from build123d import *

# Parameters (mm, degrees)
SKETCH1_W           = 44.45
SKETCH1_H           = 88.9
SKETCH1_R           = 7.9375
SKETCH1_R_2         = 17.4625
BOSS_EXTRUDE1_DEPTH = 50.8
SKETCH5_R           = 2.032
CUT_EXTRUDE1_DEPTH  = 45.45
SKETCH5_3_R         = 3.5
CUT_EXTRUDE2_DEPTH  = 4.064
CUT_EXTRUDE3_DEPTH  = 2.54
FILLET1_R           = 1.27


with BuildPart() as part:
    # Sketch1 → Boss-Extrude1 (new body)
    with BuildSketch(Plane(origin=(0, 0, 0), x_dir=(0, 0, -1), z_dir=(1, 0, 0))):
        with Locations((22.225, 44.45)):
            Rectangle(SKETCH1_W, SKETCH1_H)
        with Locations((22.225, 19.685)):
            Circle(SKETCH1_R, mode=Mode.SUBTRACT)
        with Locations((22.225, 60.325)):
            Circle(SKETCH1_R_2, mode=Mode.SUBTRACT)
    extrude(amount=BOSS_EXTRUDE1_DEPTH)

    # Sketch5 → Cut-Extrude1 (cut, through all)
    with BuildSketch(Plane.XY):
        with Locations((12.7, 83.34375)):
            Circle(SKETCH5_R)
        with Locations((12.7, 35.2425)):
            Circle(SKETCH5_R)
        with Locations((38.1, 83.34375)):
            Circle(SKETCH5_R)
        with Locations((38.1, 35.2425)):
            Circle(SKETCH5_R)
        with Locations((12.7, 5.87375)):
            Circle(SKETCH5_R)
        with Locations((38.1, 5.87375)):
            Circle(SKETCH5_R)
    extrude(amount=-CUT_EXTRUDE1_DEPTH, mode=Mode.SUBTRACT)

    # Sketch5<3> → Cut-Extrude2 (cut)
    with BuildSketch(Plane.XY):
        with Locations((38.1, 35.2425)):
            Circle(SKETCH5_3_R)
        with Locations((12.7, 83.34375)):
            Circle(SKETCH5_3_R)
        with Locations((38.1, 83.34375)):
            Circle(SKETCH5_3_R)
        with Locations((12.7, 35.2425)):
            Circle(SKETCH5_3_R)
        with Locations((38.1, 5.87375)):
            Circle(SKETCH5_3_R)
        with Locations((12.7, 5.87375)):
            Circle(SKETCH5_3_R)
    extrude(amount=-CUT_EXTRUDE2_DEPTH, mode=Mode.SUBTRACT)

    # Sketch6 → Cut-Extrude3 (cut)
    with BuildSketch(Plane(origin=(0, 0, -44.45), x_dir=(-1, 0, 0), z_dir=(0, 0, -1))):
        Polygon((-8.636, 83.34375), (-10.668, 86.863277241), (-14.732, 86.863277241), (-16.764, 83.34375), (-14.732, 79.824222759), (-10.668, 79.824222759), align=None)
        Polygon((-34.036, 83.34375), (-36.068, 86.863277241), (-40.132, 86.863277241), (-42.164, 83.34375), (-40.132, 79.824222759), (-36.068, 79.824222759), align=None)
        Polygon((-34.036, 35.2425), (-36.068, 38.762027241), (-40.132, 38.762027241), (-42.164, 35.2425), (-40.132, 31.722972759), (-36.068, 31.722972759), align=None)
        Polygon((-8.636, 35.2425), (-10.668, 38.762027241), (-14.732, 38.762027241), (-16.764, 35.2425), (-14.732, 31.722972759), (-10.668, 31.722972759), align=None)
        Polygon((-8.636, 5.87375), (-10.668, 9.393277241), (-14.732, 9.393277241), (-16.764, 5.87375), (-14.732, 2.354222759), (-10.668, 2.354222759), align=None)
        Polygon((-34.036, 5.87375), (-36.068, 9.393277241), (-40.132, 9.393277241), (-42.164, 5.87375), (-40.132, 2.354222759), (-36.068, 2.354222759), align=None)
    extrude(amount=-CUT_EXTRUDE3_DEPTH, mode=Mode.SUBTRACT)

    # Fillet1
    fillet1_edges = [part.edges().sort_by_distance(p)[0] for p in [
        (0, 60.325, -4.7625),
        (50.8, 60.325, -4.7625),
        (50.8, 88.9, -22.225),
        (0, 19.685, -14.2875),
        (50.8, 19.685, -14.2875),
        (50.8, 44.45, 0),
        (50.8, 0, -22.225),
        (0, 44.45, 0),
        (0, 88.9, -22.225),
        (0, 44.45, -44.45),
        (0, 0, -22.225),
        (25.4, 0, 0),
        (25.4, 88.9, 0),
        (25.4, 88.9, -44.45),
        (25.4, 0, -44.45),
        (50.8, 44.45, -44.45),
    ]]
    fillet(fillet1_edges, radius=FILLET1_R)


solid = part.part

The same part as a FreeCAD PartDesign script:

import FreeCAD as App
import Part
import Sketcher
Q = App.Units.Quantity


def edges_at(feature, points):
    """Names of the edges that pass closest to the given points."""
    edges = feature.Shape.Edges
    near = lambda p: min(range(len(edges)), key=lambda i: edges[i].distToShape(Part.Vertex(*p))[0])
    return sorted({f"Edge{near(p) + 1}" for p in points})


def add_polygon(sketch, points):
    """Adds a closed chain of lines whose ends are joined by coincident constraints."""
    first, n = sketch.GeometryCount, len(points)
    for a, b in zip(points, points[1:] + points[:1]):
        sketch.addGeometry(Part.LineSegment(App.Vector(*a, 0), App.Vector(*b, 0)), False)
    for i in range(n):
        sketch.addConstraint(Sketcher.Constraint("Coincident", first + i, 2, first + (i + 1) % n, 1))

doc = App.newDocument("Part")
body = doc.addObject("PartDesign::Body", "Body")

# Sketch on YZ plane
sketch1 = body.newObject("Sketcher::SketchObject", "Sketch")
sketch1.AttachmentSupport = (doc.getObject("YZ_Plane"), [""])
sketch1.MapMode = "FlatFace"
add_polygon(sketch1, [(89, 0), (0, 0), (0, -44), (89, -44)])  # lines 0-3
sketch1.addGeometry(Part.Circle(App.Vector(20, -22, 0), App.Vector(0, 0, 1), 8), False)  # 4
sketch1.addGeometry(Part.Circle(App.Vector(60, -22, 0), App.Vector(0, 0, 1), 17), False)  # 5
sketch1.addConstraint([
    Sketcher.Constraint("Horizontal", 0),
    Sketcher.Constraint("Vertical", 1),
    Sketcher.Constraint("Horizontal", 2),
    Sketcher.Constraint("Vertical", 3),
    Sketcher.Constraint("Coincident", 0, 2, -1, 1),
    Sketcher.Constraint("Horizontal", 4, 3, 5, 3),
    Sketcher.Constraint("Diameter", 4, Q("0.625 in")),
    Sketcher.Constraint("Diameter", 5, Q("1.375 in")),
    Sketcher.Constraint("DistanceX", 0, 2, 0, 1, Q("3.5 in")),
    Sketcher.Constraint("DistanceY", 1, 2, 1, 1, Q("1.75 in")),
    Sketcher.Constraint("DistanceX", 4, 3, 5, 3, Q("1.6 in")),
    Sketcher.Constraint("DistanceX", -1, 1, 4, 3, Q("0.775 in")),
    Sketcher.Constraint("DistanceY", 4, 3, -1, 1, Q("0.875 in")),
])
pad1 = body.newObject("PartDesign::Pad", "Pad")
pad1.Profile = sketch1
pad1.Length = Q("2 in")

# Sketch on XY plane
sketch2 = body.newObject("Sketcher::SketchObject", "Sketch001")
sketch2.AttachmentSupport = (doc.getObject("XY_Plane"), [""])
sketch2.MapMode = "FlatFace"
sketch2.addGeometry([
    Part.Circle(App.Vector(12.7, 83.3, 0), App.Vector(0, 0, 1), 2),  # 0
    Part.Circle(App.Vector(12.7, 35.2, 0), App.Vector(0, 0, 1), 2),  # 1
    Part.Circle(App.Vector(38.1, 83.3, 0), App.Vector(0, 0, 1), 2),  # 2
    Part.Circle(App.Vector(38.1, 35.2, 0), App.Vector(0, 0, 1), 2),  # 3
    Part.Circle(App.Vector(12.7, 5.9, 0), App.Vector(0, 0, 1), 2),  # 4
    Part.Circle(App.Vector(38.1, 5.9, 0), App.Vector(0, 0, 1), 2),  # 5
], False)
sketch2.addConstraint([
    Sketcher.Constraint("Equal", 0, 1),
    Sketcher.Constraint("Equal", 1, 2),
    Sketcher.Constraint("Equal", 2, 3),
    Sketcher.Constraint("Equal", 3, 4),
    Sketcher.Constraint("Equal", 4, 5),
    Sketcher.Constraint("Horizontal", 0, 3, 2, 3),
    Sketcher.Constraint("Horizontal", 1, 3, 3, 3),
    Sketcher.Constraint("Horizontal", 4, 3, 5, 3),
    Sketcher.Constraint("Vertical", 0, 3, 1, 3),
    Sketcher.Constraint("Vertical", 2, 3, 3, 3),
    Sketcher.Constraint("Vertical", 1, 3, 4, 3),
    Sketcher.Constraint("Vertical", 3, 3, 5, 3),
    Sketcher.Constraint("Diameter", 0, Q("0.16 in")),
    Sketcher.Constraint("DistanceX", 0, 3, 2, 3, Q("1 in")),
    Sketcher.Constraint("DistanceX", -1, 1, 0, 3, Q("0.5 in")),
    Sketcher.Constraint("DistanceY", 4, 3, 0, 3, Q("3.05 in")),
    Sketcher.Constraint("DistanceY", -1, 1, 0, 3, Q("3.28125 in")),
    Sketcher.Constraint("DistanceY", 4, 3, 1, 3, Q("1.15625 in")),
])
pocket1 = body.newObject("PartDesign::Pocket", "Pocket")
pocket1.Profile = sketch2
pocket1.Type = "ThroughAll"

# Sketch on XY plane
sketch3 = body.newObject("Sketcher::SketchObject", "Sketch002")
sketch3.AttachmentSupport = (doc.getObject("XY_Plane"), [""])
sketch3.MapMode = "FlatFace"
sketch3.addGeometry([
    Part.Circle(App.Vector(38.1, 35.2, 0), App.Vector(0, 0, 1), 3.5),  # 0
    Part.Circle(App.Vector(12.7, 83.3, 0), App.Vector(0, 0, 1), 3.5),  # 1
    Part.Circle(App.Vector(38.1, 83.3, 0), App.Vector(0, 0, 1), 3.5),  # 2
    Part.Circle(App.Vector(12.7, 35.2, 0), App.Vector(0, 0, 1), 3.5),  # 3
    Part.Circle(App.Vector(38.1, 5.9, 0), App.Vector(0, 0, 1), 3.5),  # 4
    Part.Circle(App.Vector(12.7, 5.9, 0), App.Vector(0, 0, 1), 3.5),  # 5
], False)
sketch3.addConstraint([
    Sketcher.Constraint("Equal", 0, 1),
    Sketcher.Constraint("Equal", 1, 2),
    Sketcher.Constraint("Equal", 2, 3),
    Sketcher.Constraint("Equal", 3, 4),
    Sketcher.Constraint("Equal", 4, 5),
    Sketcher.Constraint("Horizontal", 1, 3, 2, 3),
    Sketcher.Constraint("Horizontal", 0, 3, 3, 3),
    Sketcher.Constraint("Horizontal", 4, 3, 5, 3),
    Sketcher.Constraint("Vertical", 0, 3, 2, 3),
    Sketcher.Constraint("Vertical", 1, 3, 3, 3),
    Sketcher.Constraint("Vertical", 2, 3, 4, 3),
    Sketcher.Constraint("Vertical", 3, 3, 5, 3),
    Sketcher.Constraint("DistanceX", 1, 3, 0, 3, Q("1 in")),
    Sketcher.Constraint("DistanceX", -1, 1, 0, 3, Q("1.5 in")),
    Sketcher.Constraint("Diameter", 0, Q("7 mm")),
    Sketcher.Constraint("DistanceY", 4, 3, 2, 3, Q("3.05 in")),
    Sketcher.Constraint("DistanceY", -1, 1, 1, 3, Q("3.28125 in")),
    Sketcher.Constraint("DistanceY", 4, 3, 0, 3, Q("1.15625 in")),
])
pocket2 = body.newObject("PartDesign::Pocket", "Pocket001")
pocket2.Profile = sketch3
pocket2.Length = Q("0.16 in")

# Sketch on XY plane
sketch4 = body.newObject("Sketcher::SketchObject", "Sketch003")
sketch4.AttachmentSupport = (doc.getObject("XY_Plane"), [""])
sketch4.MapMode = "FlatFace"
sketch4.AttachmentOffset = App.Placement(App.Vector(0, 0, -1.75 * 25.4), App.Rotation())
add_polygon(sketch4, [(8.6, 83.3), (10.7, 86.9), (14.7, 86.9), (16.8, 83.3), (14.7, 79.8), (10.7, 79.8)])  # lines 0-5
add_polygon(sketch4, [(34, 83.3), (36.1, 86.9), (40.1, 86.9), (42.2, 83.3), (40.1, 79.8), (36.1, 79.8)])  # lines 6-11
add_polygon(sketch4, [(34, 35.2), (36.1, 38.8), (40.1, 38.8), (42.2, 35.2), (40.1, 31.7), (36.1, 31.7)])  # lines 12-17
add_polygon(sketch4, [(8.6, 35.2), (10.7, 38.8), (14.7, 38.8), (16.8, 35.2), (14.7, 31.7), (10.7, 31.7)])  # lines 18-23
add_polygon(sketch4, [(8.6, 5.9), (10.7, 9.4), (14.7, 9.4), (16.8, 5.9), (14.7, 2.4), (10.7, 2.4)])  # lines 24-29
add_polygon(sketch4, [(34, 5.9), (36.1, 9.4), (40.1, 9.4), (42.2, 5.9), (40.1, 2.4), (36.1, 2.4)])  # lines 30-35
sketch4.addConstraint([
    Sketcher.Constraint("Horizontal", 1),
    Sketcher.Constraint("Horizontal", 4),
    Sketcher.Constraint("Horizontal", 7),
    Sketcher.Constraint("Horizontal", 10),
    Sketcher.Constraint("Horizontal", 13),
    Sketcher.Constraint("Horizontal", 16),
    Sketcher.Constraint("Horizontal", 19),
    Sketcher.Constraint("Horizontal", 22),
    Sketcher.Constraint("Horizontal", 25),
    Sketcher.Constraint("Horizontal", 28),
    Sketcher.Constraint("Horizontal", 31),
    Sketcher.Constraint("Horizontal", 34),
    Sketcher.Constraint("Parallel", 0, 3),
    Sketcher.Constraint("Parallel", 2, 5),
    Sketcher.Constraint("Parallel", 3, 6),
    Sketcher.Constraint("Parallel", 5, 8),
    Sketcher.Constraint("Parallel", 6, 9),
    Sketcher.Constraint("Parallel", 8, 11),
    Sketcher.Constraint("Parallel", 9, 12),
    Sketcher.Constraint("Parallel", 11, 14),
    Sketcher.Constraint("Parallel", 12, 15),
    Sketcher.Constraint("Parallel", 14, 17),
    Sketcher.Constraint("Parallel", 15, 18),
    Sketcher.Constraint("Parallel", 17, 20),
    Sketcher.Constraint("Parallel", 18, 21),
    Sketcher.Constraint("Parallel", 20, 23),
    Sketcher.Constraint("Parallel", 21, 24),
    Sketcher.Constraint("Parallel", 23, 26),
    Sketcher.Constraint("Parallel", 24, 27),
    Sketcher.Constraint("Parallel", 26, 29),
    Sketcher.Constraint("Parallel", 27, 30),
    Sketcher.Constraint("Parallel", 29, 32),
    Sketcher.Constraint("Parallel", 30, 33),
    Sketcher.Constraint("Parallel", 32, 35),
    Sketcher.Constraint("Horizontal", 2, 2, 5, 2),
    Sketcher.Constraint("Horizontal", 1, 2, 6, 2),
    Sketcher.Constraint("Horizontal", 5, 2, 8, 2),
    Sketcher.Constraint("Horizontal", 4, 2, 9, 2),
    Sketcher.Constraint("Horizontal", 8, 2, 11, 2),
    Sketcher.Constraint("Horizontal", 14, 2, 17, 2),
    Sketcher.Constraint("Horizontal", 13, 2, 18, 2),
    Sketcher.Constraint("Horizontal", 17, 2, 20, 2),
    Sketcher.Constraint("Horizontal", 16, 2, 21, 2),
    Sketcher.Constraint("Horizontal", 20, 2, 23, 2),
    Sketcher.Constraint("Horizontal", 26, 2, 29, 2),
    Sketcher.Constraint("Horizontal", 25, 2, 30, 2),
    Sketcher.Constraint("Horizontal", 29, 2, 32, 2),
    Sketcher.Constraint("Horizontal", 28, 2, 33, 2),
    Sketcher.Constraint("Horizontal", 32, 2, 35, 2),
    Sketcher.Constraint("Vertical", 1, 2, 3, 2),
    Sketcher.Constraint("Vertical", 0, 2, 4, 2),
    Sketcher.Constraint("Vertical", 10, 2, 12, 2),
    Sketcher.Constraint("Vertical", 9, 2, 13, 2),
    Sketcher.Constraint("Vertical", 8, 2, 14, 2),
    Sketcher.Constraint("Vertical", 13, 2, 15, 2),
    Sketcher.Constraint("Vertical", 4, 2, 18, 2),
    Sketcher.Constraint("Vertical", 3, 2, 19, 2),
    Sketcher.Constraint("Vertical", 22, 2, 24, 2),
    Sketcher.Constraint("Vertical", 21, 2, 25, 2),
    Sketcher.Constraint("Vertical", 20, 2, 26, 2),
    Sketcher.Constraint("Vertical", 25, 2, 27, 2),
    Sketcher.Constraint("Vertical", 16, 2, 30, 2),
    Sketcher.Constraint("Vertical", 15, 2, 31, 2),
    Sketcher.Constraint("Equal", 4, 7),
    Sketcher.Constraint("Angle", 0, Q("60 deg")),
    Sketcher.Constraint("DistanceX", 0, 2, 6, 2, Q("1 in")),
    Sketcher.Constraint("DistanceX", 1, 1, 1, 2, Q("0.16 in")),
    Sketcher.Constraint("Distance", 0, Q("0.16 in")),
    Sketcher.Constraint("DistanceX", -1, 1, 0, 2, Q("0.42 in")),
    Sketcher.Constraint("DistanceY", -1, 1, 2, 2, Q("3.28125 in")),
    Sketcher.Constraint("DistanceY", 24, 2, 18, 2, Q("1.15625 in")),
    Sketcher.Constraint("DistanceY", -1, 1, 14, 2, Q("1.3875 in")),
])
pocket3 = body.newObject("PartDesign::Pocket", "Pocket002")
pocket3.Profile = sketch4
pocket3.Length = Q("0.1 in")
pocket3.Reversed = True
doc.recompute()

fillet = body.newObject("PartDesign::Fillet", "Fillet")
fillet.Base = (pocket3, edges_at(pocket3, [
    (0, 60.325, -4.763),
    (50.8, 60.325, -4.763),
    (50.8, 88.9, -22.225),
    (0, 19.685, -14.287),
    (50.8, 19.685, -14.287),
    (50.8, 44.45, 0),
    (50.8, 0, -22.225),
    (0, 44.45, 0),
    (0, 88.9, -22.225),
    (0, 44.45, -44.45),
    (0, 0, -22.225),
    (25.4, 0, 0),
    (25.4, 88.9, 0),
    (25.4, 88.9, -44.45),
    (25.4, 0, -44.45),
    (50.8, 44.45, -44.45),
]))
fillet.Radius = Q("0.05 in")

doc.recompute()
